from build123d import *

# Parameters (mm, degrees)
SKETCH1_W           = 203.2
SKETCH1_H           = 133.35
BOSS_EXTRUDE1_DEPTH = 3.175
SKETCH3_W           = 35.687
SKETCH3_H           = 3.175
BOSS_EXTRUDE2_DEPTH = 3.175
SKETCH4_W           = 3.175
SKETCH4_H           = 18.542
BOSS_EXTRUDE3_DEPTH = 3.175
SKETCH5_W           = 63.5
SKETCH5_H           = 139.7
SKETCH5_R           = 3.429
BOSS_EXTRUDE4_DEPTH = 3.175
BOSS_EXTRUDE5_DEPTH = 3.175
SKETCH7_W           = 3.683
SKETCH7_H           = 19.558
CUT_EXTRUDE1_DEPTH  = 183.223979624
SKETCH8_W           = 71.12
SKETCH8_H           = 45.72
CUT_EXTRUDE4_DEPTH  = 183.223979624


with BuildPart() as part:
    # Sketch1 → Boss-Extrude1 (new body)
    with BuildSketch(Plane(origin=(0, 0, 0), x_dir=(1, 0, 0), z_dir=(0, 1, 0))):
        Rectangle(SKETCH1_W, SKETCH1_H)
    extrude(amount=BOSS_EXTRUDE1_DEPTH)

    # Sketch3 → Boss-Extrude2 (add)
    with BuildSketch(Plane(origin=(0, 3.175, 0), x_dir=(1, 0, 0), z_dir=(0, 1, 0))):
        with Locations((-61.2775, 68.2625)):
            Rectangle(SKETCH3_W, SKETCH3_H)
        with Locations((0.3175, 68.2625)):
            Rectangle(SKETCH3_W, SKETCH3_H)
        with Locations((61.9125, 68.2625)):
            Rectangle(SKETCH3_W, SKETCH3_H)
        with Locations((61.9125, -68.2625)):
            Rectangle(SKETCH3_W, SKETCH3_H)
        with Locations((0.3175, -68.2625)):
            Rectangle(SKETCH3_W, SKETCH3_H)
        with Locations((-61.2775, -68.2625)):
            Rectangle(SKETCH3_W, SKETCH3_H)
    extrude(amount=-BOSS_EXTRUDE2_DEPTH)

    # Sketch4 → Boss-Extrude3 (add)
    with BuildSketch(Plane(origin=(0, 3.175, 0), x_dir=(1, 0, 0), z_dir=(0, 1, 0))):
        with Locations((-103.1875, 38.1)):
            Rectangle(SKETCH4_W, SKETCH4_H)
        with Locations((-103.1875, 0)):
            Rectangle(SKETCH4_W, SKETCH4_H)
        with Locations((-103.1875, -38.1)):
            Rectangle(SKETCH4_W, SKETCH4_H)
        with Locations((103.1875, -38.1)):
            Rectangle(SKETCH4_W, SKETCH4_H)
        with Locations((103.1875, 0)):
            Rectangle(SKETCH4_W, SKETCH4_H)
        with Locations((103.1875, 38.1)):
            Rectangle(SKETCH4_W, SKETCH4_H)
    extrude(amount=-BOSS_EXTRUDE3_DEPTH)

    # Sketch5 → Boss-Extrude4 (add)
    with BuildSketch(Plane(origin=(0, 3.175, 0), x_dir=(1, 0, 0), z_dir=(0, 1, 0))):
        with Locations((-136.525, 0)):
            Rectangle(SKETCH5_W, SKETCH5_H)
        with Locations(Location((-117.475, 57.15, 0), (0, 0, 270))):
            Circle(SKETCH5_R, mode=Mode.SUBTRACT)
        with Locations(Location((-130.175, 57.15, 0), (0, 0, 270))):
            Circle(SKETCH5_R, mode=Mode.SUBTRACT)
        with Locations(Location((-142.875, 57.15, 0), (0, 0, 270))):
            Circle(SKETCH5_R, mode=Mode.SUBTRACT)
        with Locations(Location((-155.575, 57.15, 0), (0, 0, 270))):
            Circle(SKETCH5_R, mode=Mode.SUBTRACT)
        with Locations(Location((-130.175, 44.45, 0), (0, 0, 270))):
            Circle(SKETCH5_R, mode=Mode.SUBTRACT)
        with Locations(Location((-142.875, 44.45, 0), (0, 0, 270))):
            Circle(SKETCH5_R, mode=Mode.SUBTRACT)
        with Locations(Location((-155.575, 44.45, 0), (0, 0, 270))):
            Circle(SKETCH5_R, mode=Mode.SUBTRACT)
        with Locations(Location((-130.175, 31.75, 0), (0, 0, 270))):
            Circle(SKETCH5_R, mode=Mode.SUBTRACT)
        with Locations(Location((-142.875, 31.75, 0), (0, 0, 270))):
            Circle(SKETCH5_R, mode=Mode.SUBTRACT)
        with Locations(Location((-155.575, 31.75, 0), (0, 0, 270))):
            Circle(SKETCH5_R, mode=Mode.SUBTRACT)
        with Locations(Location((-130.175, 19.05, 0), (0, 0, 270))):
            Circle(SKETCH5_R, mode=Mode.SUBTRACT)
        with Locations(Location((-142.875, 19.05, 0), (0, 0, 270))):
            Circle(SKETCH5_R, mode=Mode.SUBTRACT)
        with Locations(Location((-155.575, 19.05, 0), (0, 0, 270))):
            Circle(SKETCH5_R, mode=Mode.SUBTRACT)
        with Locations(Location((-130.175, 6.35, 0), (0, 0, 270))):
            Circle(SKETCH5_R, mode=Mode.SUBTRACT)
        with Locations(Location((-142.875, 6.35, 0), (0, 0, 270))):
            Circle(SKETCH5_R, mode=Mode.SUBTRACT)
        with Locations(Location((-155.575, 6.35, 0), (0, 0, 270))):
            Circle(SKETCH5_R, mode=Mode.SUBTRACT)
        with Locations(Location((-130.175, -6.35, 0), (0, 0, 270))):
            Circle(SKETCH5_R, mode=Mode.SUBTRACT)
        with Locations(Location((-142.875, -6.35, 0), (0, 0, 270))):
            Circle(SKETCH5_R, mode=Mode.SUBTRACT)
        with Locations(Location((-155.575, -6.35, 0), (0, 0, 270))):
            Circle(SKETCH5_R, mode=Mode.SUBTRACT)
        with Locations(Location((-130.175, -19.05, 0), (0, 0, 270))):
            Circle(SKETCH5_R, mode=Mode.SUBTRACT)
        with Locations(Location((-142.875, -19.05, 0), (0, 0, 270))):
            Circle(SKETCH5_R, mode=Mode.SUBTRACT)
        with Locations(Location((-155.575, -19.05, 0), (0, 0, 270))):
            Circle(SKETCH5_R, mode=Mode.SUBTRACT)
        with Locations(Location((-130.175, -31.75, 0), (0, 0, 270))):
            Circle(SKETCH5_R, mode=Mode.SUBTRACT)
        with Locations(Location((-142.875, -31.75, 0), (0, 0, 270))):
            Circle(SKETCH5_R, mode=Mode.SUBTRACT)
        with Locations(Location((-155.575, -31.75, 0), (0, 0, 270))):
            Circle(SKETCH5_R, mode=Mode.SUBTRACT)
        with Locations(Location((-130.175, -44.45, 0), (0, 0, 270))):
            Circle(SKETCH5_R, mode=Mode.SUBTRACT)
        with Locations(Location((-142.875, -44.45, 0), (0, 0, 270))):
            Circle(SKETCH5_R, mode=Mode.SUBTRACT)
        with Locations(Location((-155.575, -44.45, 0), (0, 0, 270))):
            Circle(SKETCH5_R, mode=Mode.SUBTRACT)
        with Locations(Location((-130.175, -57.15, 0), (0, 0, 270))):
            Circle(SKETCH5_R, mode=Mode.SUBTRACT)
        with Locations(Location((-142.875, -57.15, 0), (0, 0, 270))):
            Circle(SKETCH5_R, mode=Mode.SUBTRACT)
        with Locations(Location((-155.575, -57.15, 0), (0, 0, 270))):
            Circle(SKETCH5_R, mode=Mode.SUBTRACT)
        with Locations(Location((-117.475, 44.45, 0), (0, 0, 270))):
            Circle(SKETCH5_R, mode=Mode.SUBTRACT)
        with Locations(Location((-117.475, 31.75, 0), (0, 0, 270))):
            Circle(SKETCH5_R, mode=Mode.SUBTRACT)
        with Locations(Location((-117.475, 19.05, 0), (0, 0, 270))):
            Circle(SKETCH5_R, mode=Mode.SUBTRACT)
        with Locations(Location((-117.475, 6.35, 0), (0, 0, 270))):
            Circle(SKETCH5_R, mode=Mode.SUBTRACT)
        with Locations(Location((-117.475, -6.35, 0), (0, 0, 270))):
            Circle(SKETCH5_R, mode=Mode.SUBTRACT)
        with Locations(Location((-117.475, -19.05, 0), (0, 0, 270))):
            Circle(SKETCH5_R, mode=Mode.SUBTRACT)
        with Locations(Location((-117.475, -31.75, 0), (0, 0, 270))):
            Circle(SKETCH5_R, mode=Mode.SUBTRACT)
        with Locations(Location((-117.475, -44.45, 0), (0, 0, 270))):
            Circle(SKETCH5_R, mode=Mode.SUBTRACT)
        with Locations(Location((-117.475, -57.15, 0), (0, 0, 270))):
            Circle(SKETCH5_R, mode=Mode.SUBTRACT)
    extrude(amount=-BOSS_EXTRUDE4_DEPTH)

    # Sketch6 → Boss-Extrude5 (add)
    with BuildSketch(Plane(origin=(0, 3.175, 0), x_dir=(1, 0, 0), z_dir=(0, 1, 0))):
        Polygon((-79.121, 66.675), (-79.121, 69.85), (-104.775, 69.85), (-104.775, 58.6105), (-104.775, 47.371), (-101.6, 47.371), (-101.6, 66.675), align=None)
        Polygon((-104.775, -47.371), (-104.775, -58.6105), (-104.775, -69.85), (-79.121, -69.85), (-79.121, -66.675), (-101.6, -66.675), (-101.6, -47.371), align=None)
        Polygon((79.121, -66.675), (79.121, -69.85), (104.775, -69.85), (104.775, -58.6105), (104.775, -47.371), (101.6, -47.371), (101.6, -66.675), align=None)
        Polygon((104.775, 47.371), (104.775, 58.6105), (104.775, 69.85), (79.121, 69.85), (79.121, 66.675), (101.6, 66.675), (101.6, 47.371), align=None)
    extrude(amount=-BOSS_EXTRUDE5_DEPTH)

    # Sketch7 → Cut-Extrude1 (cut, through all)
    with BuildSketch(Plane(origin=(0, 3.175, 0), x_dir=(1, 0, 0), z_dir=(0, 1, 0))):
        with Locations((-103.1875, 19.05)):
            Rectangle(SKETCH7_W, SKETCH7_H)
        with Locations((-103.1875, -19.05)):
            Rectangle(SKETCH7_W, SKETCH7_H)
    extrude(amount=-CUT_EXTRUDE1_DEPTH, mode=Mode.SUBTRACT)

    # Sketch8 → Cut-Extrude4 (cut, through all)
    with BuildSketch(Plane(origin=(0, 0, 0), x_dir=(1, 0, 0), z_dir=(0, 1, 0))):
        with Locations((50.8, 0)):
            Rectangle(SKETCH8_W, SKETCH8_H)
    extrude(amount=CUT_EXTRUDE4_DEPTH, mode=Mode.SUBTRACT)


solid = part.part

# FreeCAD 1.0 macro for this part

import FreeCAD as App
import Part
import Sketcher

V = App.Vector
Q = App.Units.Quantity

doc = App.newDocument("Part")
params = doc.addObject("Spreadsheet::Sheet", "Params")
for row, (alias, value) in enumerate([
    ("sketch1_width", "8 in"),
    ("sketch1_height", "5.25 in"),
    ("pad1_length", "0.125 in"),
    ("sketch2_width", "1.405 in"),
    ("sketch2_height", "0.125 in"),
    ("pad2_length", "0.125 in"),
    ("sketch3_height", "0.73 in"),
    ("sketch3_width", "0.125 in"),
    ("pad3_length", "0.125 in"),
    ("sketch4_diameter", "0.27 in"),
    ("sketch4_width", "2.5 in"),
    ("sketch4_height", "5.5 in"),
    ("pad4_length", "0.125 in"),
    ("sketch5_width", "1.01 in"),
    ("sketch5_height", "0.76 in"),
    ("pad5_length", "0.125 in"),
    ("sketch6_height", "0.77 in"),
    ("sketch6_width", "0.145 in"),
    ("sketch7_width", "2.8 in"),
    ("sketch7_height", "1.8 in"),
], start=1):
    params.set(f"A{row}", alias)
    params.set(f"B{row}", "=" + value)
    params.setAlias(f"B{row}", alias)

body = doc.addObject("PartDesign::Body", "Body")

# Sketch on XZ plane
sketch1 = doc.addObject("Sketcher::SketchObject", "Sketch")
body.addObject(sketch1)
sketch1.AttachmentSupport = (doc.XZ_Plane, [""])
sketch1.MapMode = "FlatFace"
sketch1.addGeometry([
    Part.LineSegment(V(-102, -67, 0), V(-102, 67, 0)),
    Part.LineSegment(V(-102, 67, 0), V(102, 67, 0)),
    Part.LineSegment(V(102, 67, 0), V(102, -67, 0)),
    Part.LineSegment(V(102, -67, 0), V(-102, -67, 0)),
], False)
sketch1.addConstraint([
    Sketcher.Constraint("Coincident", 0, 2, 1, 1),
    Sketcher.Constraint("Coincident", 1, 2, 2, 1),
    Sketcher.Constraint("Coincident", 2, 2, 3, 1),
    Sketcher.Constraint("Coincident", 3, 2, 0, 1),
    Sketcher.Constraint("Vertical", 0),
    Sketcher.Constraint("Horizontal", 1),
    Sketcher.Constraint("Vertical", 2),
    Sketcher.Constraint("Horizontal", 3),
    Sketcher.Constraint("Symmetric", 0, 2, 2, 2, -1, 1),
    Sketcher.Constraint("DistanceX", 1, 1, 1, 2, Q("8 in")),
    Sketcher.Constraint("DistanceY", 0, 1, 0, 2, Q("5.25 in")),
])
sketch1.setExpression("Constraints[9]", "Params.sketch1_width")
sketch1.setExpression("Constraints[10]", "Params.sketch1_height")
pad1 = doc.addObject("PartDesign::Pad", "Pad")
body.addObject(pad1)
pad1.Profile = sketch1
pad1.setExpression("Length", "Params.pad1_length")
pad1.Reversed = True

# Sketch on XZ plane
sketch2 = doc.addObject("Sketcher::SketchObject", "Sketch001")
body.addObject(sketch2)
sketch2.AttachmentSupport = (doc.XZ_Plane, [""])
sketch2.MapMode = "FlatFace"
sketch2.AttachmentOffset = App.Placement(V(0, 0, -0.125 * 25.4), App.Rotation())
sketch2.addGeometry([
    Part.LineSegment(V(-79.1, -69.8, 0), V(-79.1, -66.7, 0)),  # 0
    Part.LineSegment(V(-79.1, -66.7, 0), V(-43.4, -66.7, 0)),  # 1
    Part.LineSegment(V(-43.4, -66.7, 0), V(-43.4, -69.8, 0)),  # 2
    Part.LineSegment(V(-43.4, -69.8, 0), V(-79.1, -69.8, 0)),  # 3
    Part.LineSegment(V(-17.5, -69.8, 0), V(-17.5, -66.7, 0)),  # 4
    Part.LineSegment(V(-17.5, -66.7, 0), V(18.2, -66.7, 0)),  # 5
    Part.LineSegment(V(18.2, -66.7, 0), V(18.2, -69.8, 0)),  # 6
    Part.LineSegment(V(18.2, -69.8, 0), V(-17.5, -69.8, 0)),  # 7
    Part.LineSegment(V(44.1, -69.8, 0), V(44.1, -66.7, 0)),  # 8
    Part.LineSegment(V(44.1, -66.7, 0), V(79.8, -66.7, 0)),  # 9
    Part.LineSegment(V(79.8, -66.7, 0), V(79.8, -69.8, 0)),  # 10
    Part.LineSegment(V(79.8, -69.8, 0), V(44.1, -69.8, 0)),  # 11
    Part.LineSegment(V(44.1, 66.7, 0), V(44.1, 69.8, 0)),  # 12
    Part.LineSegment(V(44.1, 69.8, 0), V(79.8, 69.8, 0)),  # 13
    Part.LineSegment(V(79.8, 69.8, 0), V(79.8, 66.7, 0)),  # 14
    Part.LineSegment(V(79.8, 66.7, 0), V(44.1, 66.7, 0)),  # 15
    Part.LineSegment(V(-17.5, 66.7, 0), V(-17.5, 69.8, 0)),  # 16
    Part.LineSegment(V(-17.5, 69.8, 0), V(18.2, 69.8, 0)),  # 17
    Part.LineSegment(V(18.2, 69.8, 0), V(18.2, 66.7, 0)),  # 18
    Part.LineSegment(V(18.2, 66.7, 0), V(-17.5, 66.7, 0)),  # 19
    Part.LineSegment(V(-79.1, 66.7, 0), V(-79.1, 69.8, 0)),  # 20
    Part.LineSegment(V(-79.1, 69.8, 0), V(-43.4, 69.8, 0)),  # 21
    Part.LineSegment(V(-43.4, 69.8, 0), V(-43.4, 66.7, 0)),  # 22
    Part.LineSegment(V(-43.4, 66.7, 0), V(-79.1, 66.7, 0)),  # 23
], False)
sketch2.addConstraint([
    Sketcher.Constraint("Coincident", 0, 2, 1, 1),
    Sketcher.Constraint("Coincident", 1, 2, 2, 1),
    Sketcher.Constraint("Coincident", 2, 2, 3, 1),
    Sketcher.Constraint("Coincident", 3, 2, 0, 1),
    Sketcher.Constraint("Coincident", 4, 2, 5, 1),
    Sketcher.Constraint("Coincident", 5, 2, 6, 1),
    Sketcher.Constraint("Coincident", 6, 2, 7, 1),
    Sketcher.Constraint("Coincident", 7, 2, 4, 1),
    Sketcher.Constraint("Coincident", 8, 2, 9, 1),
    Sketcher.Constraint("Coincident", 9, 2, 10, 1),
    Sketcher.Constraint("Coincident", 10, 2, 11, 1),
    Sketcher.Constraint("Coincident", 11, 2, 8, 1),
    Sketcher.Constraint("Coincident", 12, 2, 13, 1),
    Sketcher.Constraint("Coincident", 13, 2, 14, 1),
    Sketcher.Constraint("Coincident", 14, 2, 15, 1),
    Sketcher.Constraint("Coincident", 15, 2, 12, 1),
    Sketcher.Constraint("Coincident", 16, 2, 17, 1),
    Sketcher.Constraint("Coincident", 17, 2, 18, 1),
    Sketcher.Constraint("Coincident", 18, 2, 19, 1),
    Sketcher.Constraint("Coincident", 19, 2, 16, 1),
    Sketcher.Constraint("Coincident", 20, 2, 21, 1),
    Sketcher.Constraint("Coincident", 21, 2, 22, 1),
    Sketcher.Constraint("Coincident", 22, 2, 23, 1),
    Sketcher.Constraint("Coincident", 23, 2, 20, 1),
    Sketcher.Constraint("Vertical", 0),
    Sketcher.Constraint("Horizontal", 1),
    Sketcher.Constraint("Vertical", 2),
    Sketcher.Constraint("Horizontal", 3),
    Sketcher.Constraint("Vertical", 4),
    Sketcher.Constraint("Horizontal", 5),
    Sketcher.Constraint("Vertical", 6),
    Sketcher.Constraint("Horizontal", 7),
    Sketcher.Constraint("Vertical", 8),
    Sketcher.Constraint("Horizontal", 9),
    Sketcher.Constraint("Vertical", 10),
    Sketcher.Constraint("Horizontal", 11),
    Sketcher.Constraint("Vertical", 12),
    Sketcher.Constraint("Horizontal", 13),
    Sketcher.Constraint("Vertical", 14),
    Sketcher.Constraint("Horizontal", 15),
    Sketcher.Constraint("Vertical", 16),
    Sketcher.Constraint("Horizontal", 17),
    Sketcher.Constraint("Vertical", 18),
    Sketcher.Constraint("Horizontal", 19),
    Sketcher.Constraint("Vertical", 20),
    Sketcher.Constraint("Horizontal", 21),
    Sketcher.Constraint("Vertical", 22),
    Sketcher.Constraint("Horizontal", 23),
    Sketcher.Constraint("Symmetric", 11, 2, 12, 2, -1),
    Sketcher.Constraint("Symmetric", 9, 2, 14, 2, -1),
    Sketcher.Constraint("Symmetric", 7, 2, 16, 2, -1),
    Sketcher.Constraint("Symmetric", 5, 2, 18, 2, -1),
    Sketcher.Constraint("Symmetric", 3, 2, 20, 2, -1),
    Sketcher.Constraint("Symmetric", 1, 2, 22, 2, -1),
    Sketcher.Constraint("Horizontal", 1, 2, 4, 2),
    Sketcher.Constraint("Horizontal", 3, 2, 6, 2),
    Sketcher.Constraint("Horizontal", 5, 2, 8, 2),
    Sketcher.Constraint("Horizontal", 7, 2, 10, 2),
    Sketcher.Constraint("Equal", 3, 5),
    Sketcher.Constraint("Equal", 7, 9),
    Sketcher.Constraint("DistanceY", 11, 2, 12, 2, Q("5.5 in")),
    Sketcher.Constraint("DistanceX", 1, 1, 1, 2, Q("1.405 in")),
    Sketcher.Constraint("DistanceY", 0, 1, 0, 2, Q("0.125 in")),
    Sketcher.Constraint("DistanceX", 1, 2, -1, 1, Q("1.71 in")),
    Sketcher.Constraint("DistanceX", 4, 2, -1, 1, Q("0.69 in")),
    Sketcher.Constraint("DistanceX", -1, 1, 9, 2, Q("3.14 in")),
])
sketch2.setExpression("Constraints[61]", "Params.sketch2_width")
sketch2.setExpression("Constraints[62]", "Params.sketch2_height")
pad2 = doc.addObject("PartDesign::Pad", "Pad001")
body.addObject(pad2)
pad2.Profile = sketch2
pad2.setExpression("Length", "Params.pad2_length")

# Sketch on XZ plane
sketch3 = doc.addObject("Sketcher::SketchObject", "Sketch002")
body.addObject(sketch3)
sketch3.AttachmentSupport = (doc.XZ_Plane, [""])
sketch3.MapMode = "FlatFace"
sketch3.AttachmentOffset = App.Placement(V(0, 0, -0.125 * 25.4), App.Rotation())
sketch3.addGeometry([
    Part.LineSegment(V(-104.8, -47.4, 0), V(-104.8, -28.8, 0)),  # 0
    Part.LineSegment(V(-104.8, -28.8, 0), V(-101.6, -28.8, 0)),  # 1
    Part.LineSegment(V(-101.6, -28.8, 0), V(-101.6, -47.4, 0)),  # 2
    Part.LineSegment(V(-101.6, -47.4, 0), V(-104.8, -47.4, 0)),  # 3
    Part.LineSegment(V(-104.8, -9.3, 0), V(-104.8, 9.3, 0)),  # 4
    Part.LineSegment(V(-104.8, 9.3, 0), V(-101.6, 9.3, 0)),  # 5
    Part.LineSegment(V(-101.6, 9.3, 0), V(-101.6, -9.3, 0)),  # 6
    Part.LineSegment(V(-101.6, -9.3, 0), V(-104.8, -9.3, 0)),  # 7
    Part.LineSegment(V(-104.8, 28.8, 0), V(-104.8, 47.4, 0)),  # 8
    Part.LineSegment(V(-104.8, 47.4, 0), V(-101.6, 47.4, 0)),  # 9
    Part.LineSegment(V(-101.6, 47.4, 0), V(-101.6, 28.8, 0)),  # 10
    Part.LineSegment(V(-101.6, 28.8, 0), V(-104.8, 28.8, 0)),  # 11
    Part.LineSegment(V(101.6, 28.8, 0), V(101.6, 47.4, 0)),  # 12
    Part.LineSegment(V(101.6, 47.4, 0), V(104.8, 47.4, 0)),  # 13
    Part.LineSegment(V(104.8, 47.4, 0), V(104.8, 28.8, 0)),  # 14
    Part.LineSegment(V(104.8, 28.8, 0), V(101.6, 28.8, 0)),  # 15
    Part.LineSegment(V(101.6, -9.3, 0), V(101.6, 9.3, 0)),  # 16
    Part.LineSegment(V(101.6, 9.3, 0), V(104.8, 9.3, 0)),  # 17
    Part.LineSegment(V(104.8, 9.3, 0), V(104.8, -9.3, 0)),  # 18
    Part.LineSegment(V(104.8, -9.3, 0), V(101.6, -9.3, 0)),  # 19
    Part.LineSegment(V(101.6, -47.4, 0), V(101.6, -28.8, 0)),  # 20
    Part.LineSegment(V(101.6, -28.8, 0), V(104.8, -28.8, 0)),  # 21
    Part.LineSegment(V(104.8, -28.8, 0), V(104.8, -47.4, 0)),  # 22
    Part.LineSegment(V(104.8, -47.4, 0), V(101.6, -47.4, 0)),  # 23
], False)
sketch3.addConstraint([
    Sketcher.Constraint("Coincident", 0, 2, 1, 1),
    Sketcher.Constraint("Coincident", 1, 2, 2, 1),
    Sketcher.Constraint("Coincident", 2, 2, 3, 1),
    Sketcher.Constraint("Coincident", 3, 2, 0, 1),
    Sketcher.Constraint("Coincident", 4, 2, 5, 1),
    Sketcher.Constraint("Coincident", 5, 2, 6, 1),
    Sketcher.Constraint("Coincident", 6, 2, 7, 1),
    Sketcher.Constraint("Coincident", 7, 2, 4, 1),
    Sketcher.Constraint("Coincident", 8, 2, 9, 1),
    Sketcher.Constraint("Coincident", 9, 2, 10, 1),
    Sketcher.Constraint("Coincident", 10, 2, 11, 1),
    Sketcher.Constraint("Coincident", 11, 2, 8, 1),
    Sketcher.Constraint("Coincident", 12, 2, 13, 1),
    Sketcher.Constraint("Coincident", 13, 2, 14, 1),
    Sketcher.Constraint("Coincident", 14, 2, 15, 1),
    Sketcher.Constraint("Coincident", 15, 2, 12, 1),
    Sketcher.Constraint("Coincident", 16, 2, 17, 1),
    Sketcher.Constraint("Coincident", 17, 2, 18, 1),
    Sketcher.Constraint("Coincident", 18, 2, 19, 1),
    Sketcher.Constraint("Coincident", 19, 2, 16, 1),
    Sketcher.Constraint("Coincident", 20, 2, 21, 1),
    Sketcher.Constraint("Coincident", 21, 2, 22, 1),
    Sketcher.Constraint("Coincident", 22, 2, 23, 1),
    Sketcher.Constraint("Coincident", 23, 2, 20, 1),
    Sketcher.Constraint("Vertical", 0),
    Sketcher.Constraint("Horizontal", 1),
    Sketcher.Constraint("Vertical", 2),
    Sketcher.Constraint("Horizontal", 3),
    Sketcher.Constraint("Vertical", 4),
    Sketcher.Constraint("Horizontal", 5),
    Sketcher.Constraint("Vertical", 6),
    Sketcher.Constraint("Horizontal", 7),
    Sketcher.Constraint("Vertical", 8),
    Sketcher.Constraint("Horizontal", 9),
    Sketcher.Constraint("Vertical", 10),
    Sketcher.Constraint("Horizontal", 11),
    Sketcher.Constraint("Vertical", 12),
    Sketcher.Constraint("Horizontal", 13),
    Sketcher.Constraint("Vertical", 14),
    Sketcher.Constraint("Horizontal", 15),
    Sketcher.Constraint("Vertical", 16),
    Sketcher.Constraint("Horizontal", 17),
    Sketcher.Constraint("Vertical", 18),
    Sketcher.Constraint("Horizontal", 19),
    Sketcher.Constraint("Vertical", 20),
    Sketcher.Constraint("Horizontal", 21),
    Sketcher.Constraint("Vertical", 22),
    Sketcher.Constraint("Horizontal", 23),
    Sketcher.Constraint("Symmetric", 2, 2, 12, 2, -1, 1),
    Sketcher.Constraint("Symmetric", 0, 2, 14, 2, -1, 1),
    Sketcher.Constraint("Symmetric", 6, 2, 16, 2, -1, 1),
    Sketcher.Constraint("Symmetric", 4, 2, 18, 2, -1, 1),
    Sketcher.Constraint("Symmetric", 10, 2, 20, 2, -1, 1),
    Sketcher.Constraint("Symmetric", 8, 2, 22, 2, -1, 1),
    Sketcher.Constraint("Symmetric", 9, 2, 12, 2, -2),
    Sketcher.Constraint("Symmetric", 11, 2, 14, 2, -2),
    Sketcher.Constraint("Horizontal", 5, 2, 16, 2),
    Sketcher.Constraint("Vertical", 3, 2, 4, 2),
    Sketcher.Constraint("Vertical", 2, 2, 5, 2),
    Sketcher.Constraint("Equal", 2, 4),
    Sketcher.Constraint("DistanceX", 1, 2, -1, 1, Q("4 in")),
    Sketcher.Constraint("DistanceY", 0, 2, 8, 2, Q("3 in")),
    Sketcher.Constraint("DistanceY", 0, 1, 0, 2, Q("0.73 in")),
    Sketcher.Constraint("DistanceX", 1, 1, 1, 2, Q("0.125 in")),
])
sketch3.setExpression("Constraints[62]", "Params.sketch3_height")
sketch3.setExpression("Constraints[63]", "Params.sketch3_width")
pad3 = doc.addObject("PartDesign::Pad", "Pad002")
body.addObject(pad3)
pad3.Profile = sketch3
pad3.setExpression("Length", "Params.pad3_length")

# Sketch on XZ plane
sketch4 = doc.addObject("Sketcher::SketchObject", "Sketch003")
body.addObject(sketch4)
sketch4.AttachmentSupport = (doc.XZ_Plane, [""])
sketch4.MapMode = "FlatFace"
sketch4.AttachmentOffset = App.Placement(V(0, 0, -0.125 * 25.4), App.Rotation())
sketch4.addGeometry([
    Part.LineSegment(V(-168.3, -69.8, 0), V(-168.3, 69.8, 0)),  # 0
    Part.LineSegment(V(-168.3, 69.8, 0), V(-104.8, 69.8, 0)),  # 1
    Part.LineSegment(V(-104.8, 69.8, 0), V(-104.8, -69.8, 0)),  # 2
    Part.LineSegment(V(-104.8, -69.8, 0), V(-168.3, -69.8, 0)),  # 3
    Part.Circle(V(-155.6, 57.1, 0), V(0, 0, 1), 3.4),  # 4
    Part.Circle(V(-155.6, 44.5, 0), V(0, 0, 1), 3.4),  # 5
    Part.Circle(V(-155.6, 31.8, 0), V(0, 0, 1), 3.4),  # 6
    Part.Circle(V(-142.9, 57.1, 0), V(0, 0, 1), 3.4),  # 7
    Part.Circle(V(-142.9, 44.5, 0), V(0, 0, 1), 3.4),  # 8
    Part.Circle(V(-142.9, 31.8, 0), V(0, 0, 1), 3.4),  # 9
    Part.Circle(V(-155.6, 19.1, 0), V(0, 0, 1), 3.4),  # 10
    Part.Circle(V(-155.6, 6.3, 0), V(0, 0, 1), 3.4),  # 11
    Part.Circle(V(-142.9, 19.1, 0), V(0, 0, 1), 3.4),  # 12
    Part.Circle(V(-142.9, 6.3, 0), V(0, 0, 1), 3.4),  # 13
    Part.Circle(V(-130.2, 57.1, 0), V(0, 0, 1), 3.4),  # 14
    Part.Circle(V(-130.2, 44.5, 0), V(0, 0, 1), 3.4),  # 15
    Part.Circle(V(-130.2, 31.8, 0), V(0, 0, 1), 3.4),  # 16
    Part.Circle(V(-117.5, 57.1, 0), V(0, 0, 1), 3.4),  # 17
    Part.Circle(V(-117.5, 44.5, 0), V(0, 0, 1), 3.4),  # 18
    Part.Circle(V(-117.5, 31.8, 0), V(0, 0, 1), 3.4),  # 19
    Part.Circle(V(-130.2, 19.1, 0), V(0, 0, 1), 3.4),  # 20
    Part.Circle(V(-130.2, 6.3, 0), V(0, 0, 1), 3.4),  # 21
    Part.Circle(V(-117.5, 19.1, 0), V(0, 0, 1), 3.4),  # 22
    Part.Circle(V(-117.5, 6.3, 0), V(0, 0, 1), 3.4),  # 23
    Part.Circle(V(-155.6, -6.3, 0), V(0, 0, 1), 3.4),  # 24
    Part.Circle(V(-155.6, -19.1, 0), V(0, 0, 1), 3.4),  # 25
    Part.Circle(V(-142.9, -6.3, 0), V(0, 0, 1), 3.4),  # 26
    Part.Circle(V(-142.9, -19.1, 0), V(0, 0, 1), 3.4),  # 27
    Part.Circle(V(-155.6, -31.8, 0), V(0, 0, 1), 3.4),  # 28
    Part.Circle(V(-155.6, -44.5, 0), V(0, 0, 1), 3.4),  # 29
    Part.Circle(V(-155.6, -57.1, 0), V(0, 0, 1), 3.4),  # 30
    Part.Circle(V(-142.9, -31.8, 0), V(0, 0, 1), 3.4),  # 31
    Part.Circle(V(-142.9, -44.5, 0), V(0, 0, 1), 3.4),  # 32
    Part.Circle(V(-142.9, -57.1, 0), V(0, 0, 1), 3.4),  # 33
    Part.Circle(V(-130.2, -6.3, 0), V(0, 0, 1), 3.4),  # 34
    Part.Circle(V(-130.2, -19.1, 0), V(0, 0, 1), 3.4),  # 35
    Part.Circle(V(-117.5, -6.3, 0), V(0, 0, 1), 3.4),  # 36
    Part.Circle(V(-117.5, -19.1, 0), V(0, 0, 1), 3.4),  # 37
    Part.Circle(V(-130.2, -31.8, 0), V(0, 0, 1), 3.4),  # 38
    Part.Circle(V(-130.2, -44.5, 0), V(0, 0, 1), 3.4),  # 39
    Part.Circle(V(-130.2, -57.1, 0), V(0, 0, 1), 3.4),  # 40
    Part.Circle(V(-117.5, -31.8, 0), V(0, 0, 1), 3.4),  # 41
    Part.Circle(V(-117.5, -44.5, 0), V(0, 0, 1), 3.4),  # 42
    Part.Circle(V(-117.5, -57.1, 0), V(0, 0, 1), 3.4),  # 43
], False)
sketch4.addConstraint([
    Sketcher.Constraint("Coincident", 0, 2, 1, 1),
    Sketcher.Constraint("Coincident", 1, 2, 2, 1),
    Sketcher.Constraint("Coincident", 2, 2, 3, 1),
    Sketcher.Constraint("Coincident", 3, 2, 0, 1),
    Sketcher.Constraint("Vertical", 0),
    Sketcher.Constraint("Horizontal", 1),
    Sketcher.Constraint("Vertical", 2),
    Sketcher.Constraint("Horizontal", 3),
    Sketcher.Constraint("Equal", 4, 5),
    Sketcher.Constraint("Equal", 5, 6),
    Sketcher.Constraint("Equal", 6, 7),
    Sketcher.Constraint("Equal", 7, 8),
    Sketcher.Constraint("Equal", 8, 9),
    Sketcher.Constraint("Equal", 9, 10),
    Sketcher.Constraint("Equal", 10, 11),
    Sketcher.Constraint("Equal", 11, 12),
    Sketcher.Constraint("Equal", 12, 13),
    Sketcher.Constraint("Equal", 13, 14),
    Sketcher.Constraint("Equal", 14, 15),
    Sketcher.Constraint("Equal", 15, 16),
    Sketcher.Constraint("Equal", 16, 17),
    Sketcher.Constraint("Equal", 17, 18),
    Sketcher.Constraint("Equal", 18, 19),
    Sketcher.Constraint("Equal", 19, 20),
    Sketcher.Constraint("Equal", 20, 21),
    Sketcher.Constraint("Equal", 21, 22),
    Sketcher.Constraint("Equal", 22, 23),
    Sketcher.Constraint("Equal", 23, 24),
    Sketcher.Constraint("Equal", 24, 25),
    Sketcher.Constraint("Equal", 25, 26),
    Sketcher.Constraint("Equal", 26, 27),
    Sketcher.Constraint("Equal", 27, 28),
    Sketcher.Constraint("Equal", 28, 29),
    Sketcher.Constraint("Equal", 29, 30),
    Sketcher.Constraint("Equal", 30, 31),
    Sketcher.Constraint("Equal", 31, 32),
    Sketcher.Constraint("Equal", 32, 33),
    Sketcher.Constraint("Equal", 33, 34),
    Sketcher.Constraint("Equal", 34, 35),
    Sketcher.Constraint("Equal", 35, 36),
    Sketcher.Constraint("Equal", 36, 37),
    Sketcher.Constraint("Equal", 37, 38),
    Sketcher.Constraint("Equal", 38, 39),
    Sketcher.Constraint("Equal", 39, 40),
    Sketcher.Constraint("Equal", 40, 41),
    Sketcher.Constraint("Equal", 41, 42),
    Sketcher.Constraint("Equal", 42, 43),
    Sketcher.Constraint("Symmetric", 11, 3, 24, 3, -1),
    Sketcher.Constraint("Symmetric", 10, 3, 25, 3, -1),
    Sketcher.Constraint("Symmetric", 13, 3, 26, 3, -1),
    Sketcher.Constraint("Symmetric", 12, 3, 27, 3, -1),
    Sketcher.Constraint("Symmetric", 6, 3, 28, 3, -1),
    Sketcher.Constraint("Symmetric", 5, 3, 29, 3, -1),
    Sketcher.Constraint("Symmetric", 4, 3, 30, 3, -1),
    Sketcher.Constraint("Symmetric", 9, 3, 31, 3, -1),
    Sketcher.Constraint("Symmetric", 8, 3, 32, 3, -1),
    Sketcher.Constraint("Symmetric", 7, 3, 33, 3, -1),
    Sketcher.Constraint("Symmetric", 21, 3, 34, 3, -1),
    Sketcher.Constraint("Symmetric", 20, 3, 35, 3, -1),
    Sketcher.Constraint("Symmetric", 23, 3, 36, 3, -1),
    Sketcher.Constraint("Symmetric", 22, 3, 37, 3, -1),
    Sketcher.Constraint("Symmetric", 16, 3, 38, 3, -1),
    Sketcher.Constraint("Symmetric", 15, 3, 39, 3, -1),
    Sketcher.Constraint("Symmetric", 14, 3, 40, 3, -1),
    Sketcher.Constraint("Symmetric", 19, 3, 41, 3, -1),
    Sketcher.Constraint("Symmetric", 18, 3, 42, 3, -1),
    Sketcher.Constraint("Symmetric", 17, 3, 43, 3, -1),
    Sketcher.Constraint("Horizontal", 4, 3, 7, 3),
    Sketcher.Constraint("Horizontal", 5, 3, 8, 3),
    Sketcher.Constraint("Horizontal", 6, 3, 9, 3),
    Sketcher.Constraint("Horizontal", 10, 3, 12, 3),
    Sketcher.Constraint("Horizontal", 11, 3, 13, 3),
    Sketcher.Constraint("Horizontal", 7, 3, 14, 3),
    Sketcher.Constraint("Horizontal", 8, 3, 15, 3),
    Sketcher.Constraint("Horizontal", 9, 3, 16, 3),
    Sketcher.Constraint("Horizontal", 14, 3, 17, 3),
    Sketcher.Constraint("Horizontal", 15, 3, 18, 3),
    Sketcher.Constraint("Horizontal", 16, 3, 19, 3),
    Sketcher.Constraint("Horizontal", 12, 3, 20, 3),
    Sketcher.Constraint("Horizontal", 13, 3, 21, 3),
    Sketcher.Constraint("Horizontal", 20, 3, 22, 3),
    Sketcher.Constraint("Horizontal", 21, 3, 23, 3),
    Sketcher.Constraint("Vertical", 4, 3, 5, 3),
    Sketcher.Constraint("Vertical", 5, 3, 6, 3),
    Sketcher.Constraint("Vertical", 7, 3, 8, 3),
    Sketcher.Constraint("Vertical", 8, 3, 9, 3),
    Sketcher.Constraint("Vertical", 6, 3, 10, 3),
    Sketcher.Constraint("Vertical", 10, 3, 11, 3),
    Sketcher.Constraint("Vertical", 9, 3, 12, 3),
    Sketcher.Constraint("Vertical", 12, 3, 13, 3),
    Sketcher.Constraint("Vertical", 14, 3, 15, 3),
    Sketcher.Constraint("Vertical", 15, 3, 16, 3),
    Sketcher.Constraint("Vertical", 17, 3, 18, 3),
    Sketcher.Constraint("Vertical", 18, 3, 19, 3),
    Sketcher.Constraint("Vertical", 16, 3, 20, 3),
    Sketcher.Constraint("Vertical", 20, 3, 21, 3),
    Sketcher.Constraint("Vertical", 19, 3, 22, 3),
    Sketcher.Constraint("Vertical", 22, 3, 23, 3),
    Sketcher.Constraint("Diameter", 4, Q("0.27 in")),
    Sketcher.Constraint("DistanceX", 1, 1, 1, 2, Q("2.5 in")),
    Sketcher.Constraint("DistanceY", 0, 1, 0, 2, Q("5.5 in")),
    Sketcher.Constraint("DistanceY", 6, 3, 4, 3, Q("1 in")),
    Sketcher.Constraint("DistanceY", 10, 3, 5, 3, Q("1 in")),
    Sketcher.Constraint("DistanceY", 11, 3, 6, 3, Q("1 in")),
    Sketcher.Constraint("DistanceX", 4, 3, 14, 3, Q("1 in")),
    Sketcher.Constraint("DistanceX", 7, 3, 17, 3, Q("1 in")),
    Sketcher.Constraint("DistanceY", 24, 3, 10, 3, Q("1 in")),
    Sketcher.Constraint("DistanceY", 5, 3, 0, 2, Q("1 in")),
    Sketcher.Constraint("DistanceX", 0, 2, 7, 3, Q("1 in")),
    Sketcher.Constraint("DistanceX", 14, 3, 1, 2, Q("1 in")),
    Sketcher.Constraint("DistanceY", 2, 2, 42, 3, Q("1 in")),
    Sketcher.Constraint("DistanceX", 4, 3, -1, 1, Q("6.125 in")),
])
sketch4.setExpression("Constraints[98]", "Params.sketch4_diameter")
sketch4.setExpression("Constraints[99]", "Params.sketch4_width")
sketch4.setExpression("Constraints[100]", "Params.sketch4_height")
pad4 = doc.addObject("PartDesign::Pad", "Pad003")
body.addObject(pad4)
pad4.Profile = sketch4
pad4.setExpression("Length", "Params.pad4_length")

# Sketch on XZ plane
sketch5 = doc.addObject("Sketcher::SketchObject", "Sketch004")
body.addObject(sketch5)
sketch5.AttachmentSupport = (doc.XZ_Plane, [""])
sketch5.MapMode = "FlatFace"
sketch5.AttachmentOffset = App.Placement(V(0, 0, -0.125 * 25.4), App.Rotation())
sketch5.addGeometry([
    Part.LineSegment(V(-79.1, -66.7, 0), V(-79.1, -69.8, 0)),  # 0
    Part.LineSegment(V(-79.1, -69.8, 0), V(-104.8, -69.8, 0)),  # 1
    Part.LineSegment(V(-104.8, -69.8, 0), V(-104.8, -47.4, 0)),  # 2
    Part.LineSegment(V(-104.8, -47.4, 0), V(-101.6, -47.4, 0)),  # 3
    Part.LineSegment(V(-101.6, -47.4, 0), V(-101.6, -66.7, 0)),  # 4
    Part.LineSegment(V(-101.6, -66.7, 0), V(-79.1, -66.7, 0)),  # 5
    Part.LineSegment(V(-104.8, 47.4, 0), V(-104.8, 69.8, 0)),  # 6
    Part.LineSegment(V(-104.8, 69.8, 0), V(-79.1, 69.8, 0)),  # 7
    Part.LineSegment(V(-79.1, 69.8, 0), V(-79.1, 66.7, 0)),  # 8
    Part.LineSegment(V(-79.1, 66.7, 0), V(-101.6, 66.7, 0)),  # 9
    Part.LineSegment(V(-101.6, 66.7, 0), V(-101.6, 47.4, 0)),  # 10
    Part.LineSegment(V(-101.6, 47.4, 0), V(-104.8, 47.4, 0)),  # 11
    Part.LineSegment(V(79.1, 66.7, 0), V(79.1, 69.8, 0)),  # 12
    Part.LineSegment(V(79.1, 69.8, 0), V(104.8, 69.8, 0)),  # 13
    Part.LineSegment(V(104.8, 69.8, 0), V(104.8, 47.4, 0)),  # 14
    Part.LineSegment(V(104.8, 47.4, 0), V(101.6, 47.4, 0)),  # 15
    Part.LineSegment(V(101.6, 47.4, 0), V(101.6, 66.7, 0)),  # 16
    Part.LineSegment(V(101.6, 66.7, 0), V(79.1, 66.7, 0)),  # 17
    Part.LineSegment(V(104.8, -47.4, 0), V(104.8, -69.8, 0)),  # 18
    Part.LineSegment(V(104.8, -69.8, 0), V(79.1, -69.8, 0)),  # 19
    Part.LineSegment(V(79.1, -69.8, 0), V(79.1, -66.7, 0)),  # 20
    Part.LineSegment(V(79.1, -66.7, 0), V(101.6, -66.7, 0)),  # 21
    Part.LineSegment(V(101.6, -66.7, 0), V(101.6, -47.4, 0)),  # 22
    Part.LineSegment(V(101.6, -47.4, 0), V(104.8, -47.4, 0)),  # 23
], False)
sketch5.addConstraint([
    Sketcher.Constraint("Coincident", 0, 2, 1, 1),
    Sketcher.Constraint("Coincident", 1, 2, 2, 1),
    Sketcher.Constraint("Coincident", 2, 2, 3, 1),
    Sketcher.Constraint("Coincident", 3, 2, 4, 1),
    Sketcher.Constraint("Coincident", 4, 2, 5, 1),
    Sketcher.Constraint("Coincident", 5, 2, 0, 1),
    Sketcher.Constraint("Coincident", 6, 2, 7, 1),
    Sketcher.Constraint("Coincident", 7, 2, 8, 1),
    Sketcher.Constraint("Coincident", 8, 2, 9, 1),
    Sketcher.Constraint("Coincident", 9, 2, 10, 1),
    Sketcher.Constraint("Coincident", 10, 2, 11, 1),
    Sketcher.Constraint("Coincident", 11, 2, 6, 1),
    Sketcher.Constraint("Coincident", 12, 2, 13, 1),
    Sketcher.Constraint("Coincident", 13, 2, 14, 1),
    Sketcher.Constraint("Coincident", 14, 2, 15, 1),
    Sketcher.Constraint("Coincident", 15, 2, 16, 1),
    Sketcher.Constraint("Coincident", 16, 2, 17, 1),
    Sketcher.Constraint("Coincident", 17, 2, 12, 1),
    Sketcher.Constraint("Coincident", 18, 2, 19, 1),
    Sketcher.Constraint("Coincident", 19, 2, 20, 1),
    Sketcher.Constraint("Coincident", 20, 2, 21, 1),
    Sketcher.Constraint("Coincident", 21, 2, 22, 1),
    Sketcher.Constraint("Coincident", 22, 2, 23, 1),
    Sketcher.Constraint("Coincident", 23, 2, 18, 1),
    Sketcher.Constraint("Vertical", 0),
    Sketcher.Constraint("Horizontal", 1),
    Sketcher.Constraint("Vertical", 2),
    Sketcher.Constraint("Horizontal", 3),
    Sketcher.Constraint("Vertical", 4),
    Sketcher.Constraint("Horizontal", 5),
    Sketcher.Constraint("Vertical", 6),
    Sketcher.Constraint("Horizontal", 7),
    Sketcher.Constraint("Vertical", 8),
    Sketcher.Constraint("Horizontal", 9),
    Sketcher.Constraint("Vertical", 10),
    Sketcher.Constraint("Horizontal", 11),
    Sketcher.Constraint("Vertical", 12),
    Sketcher.Constraint("Horizontal", 13),
    Sketcher.Constraint("Vertical", 14),
    Sketcher.Constraint("Horizontal", 15),
    Sketcher.Constraint("Vertical", 16),
    Sketcher.Constraint("Horizontal", 17),
    Sketcher.Constraint("Vertical", 18),
    Sketcher.Constraint("Horizontal", 19),
    Sketcher.Constraint("Vertical", 20),
    Sketcher.Constraint("Horizontal", 21),
    Sketcher.Constraint("Vertical", 22),
    Sketcher.Constraint("Horizontal", 23),
    Sketcher.Constraint("Symmetric", 0, 2, 12, 2, -1, 1),
    Sketcher.Constraint("Symmetric", 2, 2, 14, 2, -1, 1),
    Sketcher.Constraint("Symmetric", 4, 2, 16, 2, -1, 1),
    Sketcher.Constraint("Symmetric", 6, 2, 18, 2, -1, 1),
    Sketcher.Constraint("Symmetric", 8, 2, 20, 2, -1, 1),
    Sketcher.Constraint("Symmetric", 10, 2, 22, 2, -1, 1),
    Sketcher.Constraint("Symmetric", 7, 2, 12, 2, -2),
    Sketcher.Constraint("Symmetric", 11, 2, 14, 2, -2),
    Sketcher.Constraint("Symmetric", 9, 2, 16, 2, -2),
    Sketcher.Constraint("Equal", 23, 0),
    Sketcher.Constraint("Equal", 21, 2),
    Sketcher.Constraint("DistanceX", 3, 2, -1, 1, Q("4 in")),
    Sketcher.Constraint("DistanceX", 1, 2, 1, 1, Q("1.01 in")),
    Sketcher.Constraint("DistanceY", 4, 2, 4, 1, Q("0.76 in")),
    Sketcher.Constraint("DistanceY", 1, 2, 6, 2, Q("5.5 in")),
])
sketch5.setExpression("Constraints[60]", "Params.sketch5_width")
sketch5.setExpression("Constraints[61]", "Params.sketch5_height")
pad5 = doc.addObject("PartDesign::Pad", "Pad004")
body.addObject(pad5)
pad5.Profile = sketch5
pad5.setExpression("Length", "Params.pad5_length")

# Sketch on XZ plane
sketch6 = doc.addObject("Sketcher::SketchObject", "Sketch005")
body.addObject(sketch6)
sketch6.AttachmentSupport = (doc.XZ_Plane, [""])
sketch6.MapMode = "FlatFace"
sketch6.AttachmentOffset = App.Placement(V(0, 0, -0.125 * 25.4), App.Rotation())
sketch6.addGeometry([
    Part.LineSegment(V(-105, -28.8, 0), V(-105, -9.3, 0)),  # 0
    Part.LineSegment(V(-105, -9.3, 0), V(-101.3, -9.3, 0)),  # 1
    Part.LineSegment(V(-101.3, -9.3, 0), V(-101.3, -28.8, 0)),  # 2
    Part.LineSegment(V(-101.3, -28.8, 0), V(-105, -28.8, 0)),  # 3
    Part.LineSegment(V(-105, 9.3, 0), V(-105, 28.8, 0)),  # 4
    Part.LineSegment(V(-105, 28.8, 0), V(-101.3, 28.8, 0)),  # 5
    Part.LineSegment(V(-101.3, 28.8, 0), V(-101.3, 9.3, 0)),  # 6
    Part.LineSegment(V(-101.3, 9.3, 0), V(-105, 9.3, 0)),  # 7
], False)
sketch6.addConstraint([
    Sketcher.Constraint("Coincident", 0, 2, 1, 1),
    Sketcher.Constraint("Coincident", 1, 2, 2, 1),
    Sketcher.Constraint("Coincident", 2, 2, 3, 1),
    Sketcher.Constraint("Coincident", 3, 2, 0, 1),
    Sketcher.Constraint("Coincident", 4, 2, 5, 1),
    Sketcher.Constraint("Coincident", 5, 2, 6, 1),
    Sketcher.Constraint("Coincident", 6, 2, 7, 1),
    Sketcher.Constraint("Coincident", 7, 2, 4, 1),
    Sketcher.Constraint("Vertical", 0),
    Sketcher.Constraint("Horizontal", 1),
    Sketcher.Constraint("Vertical", 2),
    Sketcher.Constraint("Horizontal", 3),
    Sketcher.Constraint("Vertical", 4),
    Sketcher.Constraint("Horizontal", 5),
    Sketcher.Constraint("Vertical", 6),
    Sketcher.Constraint("Horizontal", 7),
    Sketcher.Constraint("Symmetric", 3, 2, 4, 2, -1),
    Sketcher.Constraint("Symmetric", 1, 2, 6, 2, -1),
    Sketcher.Constraint("DistanceY", 0, 1, 0, 2, Q("0.77 in")),
    Sketcher.Constraint("DistanceY", 0, 2, 4, 2, Q("1.5 in")),
    Sketcher.Constraint("DistanceX", 1, 1, 1, 2, Q("0.145 in")),
    Sketcher.Constraint("DistanceX", 1, 2, -1, 1, Q("3.99 in")),
])
sketch6.setExpression("Constraints[18]", "Params.sketch6_height")
sketch6.setExpression("Constraints[20]", "Params.sketch6_width")
pocket1 = doc.addObject("PartDesign::Pocket", "Pocket")
body.addObject(pocket1)
pocket1.Profile = sketch6
pocket1.Type = "ThroughAll"
pocket1.Reversed = True

# Sketch on XZ plane
sketch7 = doc.addObject("Sketcher::SketchObject", "Sketch006")
body.addObject(sketch7)
sketch7.AttachmentSupport = (doc.XZ_Plane, [""])
sketch7.MapMode = "FlatFace"
sketch7.addGeometry([
    Part.LineSegment(V(15, -23, 0), V(15, 23, 0)),
    Part.LineSegment(V(15, 23, 0), V(86, 23, 0)),
    Part.LineSegment(V(86, 23, 0), V(86, -23, 0)),
    Part.LineSegment(V(86, -23, 0), V(15, -23, 0)),
], False)
sketch7.addConstraint([
    Sketcher.Constraint("Coincident", 0, 2, 1, 1),
    Sketcher.Constraint("Coincident", 1, 2, 2, 1),
    Sketcher.Constraint("Coincident", 2, 2, 3, 1),
    Sketcher.Constraint("Coincident", 3, 2, 0, 1),
    Sketcher.Constraint("Vertical", 0),
    Sketcher.Constraint("Horizontal", 1),
    Sketcher.Constraint("Vertical", 2),
    Sketcher.Constraint("Horizontal", 3),
    Sketcher.Constraint("DistanceX", 1, 1, 1, 2, Q("2.8 in")),
    Sketcher.Constraint("DistanceY", 0, 1, 0, 2, Q("1.8 in")),
    Sketcher.Constraint("DistanceX", -1, 1, 0, 2, Q("0.6 in")),
    Sketcher.Constraint("DistanceY", -1, 1, 0, 2, Q("0.9 in")),
])
sketch7.setExpression("Constraints[8]", "Params.sketch7_width")
sketch7.setExpression("Constraints[9]", "Params.sketch7_height")
pocket2 = doc.addObject("PartDesign::Pocket", "Pocket001")
body.addObject(pocket2)
pocket2.Profile = sketch7
pocket2.Type = "ThroughAll"

doc.recompute()
